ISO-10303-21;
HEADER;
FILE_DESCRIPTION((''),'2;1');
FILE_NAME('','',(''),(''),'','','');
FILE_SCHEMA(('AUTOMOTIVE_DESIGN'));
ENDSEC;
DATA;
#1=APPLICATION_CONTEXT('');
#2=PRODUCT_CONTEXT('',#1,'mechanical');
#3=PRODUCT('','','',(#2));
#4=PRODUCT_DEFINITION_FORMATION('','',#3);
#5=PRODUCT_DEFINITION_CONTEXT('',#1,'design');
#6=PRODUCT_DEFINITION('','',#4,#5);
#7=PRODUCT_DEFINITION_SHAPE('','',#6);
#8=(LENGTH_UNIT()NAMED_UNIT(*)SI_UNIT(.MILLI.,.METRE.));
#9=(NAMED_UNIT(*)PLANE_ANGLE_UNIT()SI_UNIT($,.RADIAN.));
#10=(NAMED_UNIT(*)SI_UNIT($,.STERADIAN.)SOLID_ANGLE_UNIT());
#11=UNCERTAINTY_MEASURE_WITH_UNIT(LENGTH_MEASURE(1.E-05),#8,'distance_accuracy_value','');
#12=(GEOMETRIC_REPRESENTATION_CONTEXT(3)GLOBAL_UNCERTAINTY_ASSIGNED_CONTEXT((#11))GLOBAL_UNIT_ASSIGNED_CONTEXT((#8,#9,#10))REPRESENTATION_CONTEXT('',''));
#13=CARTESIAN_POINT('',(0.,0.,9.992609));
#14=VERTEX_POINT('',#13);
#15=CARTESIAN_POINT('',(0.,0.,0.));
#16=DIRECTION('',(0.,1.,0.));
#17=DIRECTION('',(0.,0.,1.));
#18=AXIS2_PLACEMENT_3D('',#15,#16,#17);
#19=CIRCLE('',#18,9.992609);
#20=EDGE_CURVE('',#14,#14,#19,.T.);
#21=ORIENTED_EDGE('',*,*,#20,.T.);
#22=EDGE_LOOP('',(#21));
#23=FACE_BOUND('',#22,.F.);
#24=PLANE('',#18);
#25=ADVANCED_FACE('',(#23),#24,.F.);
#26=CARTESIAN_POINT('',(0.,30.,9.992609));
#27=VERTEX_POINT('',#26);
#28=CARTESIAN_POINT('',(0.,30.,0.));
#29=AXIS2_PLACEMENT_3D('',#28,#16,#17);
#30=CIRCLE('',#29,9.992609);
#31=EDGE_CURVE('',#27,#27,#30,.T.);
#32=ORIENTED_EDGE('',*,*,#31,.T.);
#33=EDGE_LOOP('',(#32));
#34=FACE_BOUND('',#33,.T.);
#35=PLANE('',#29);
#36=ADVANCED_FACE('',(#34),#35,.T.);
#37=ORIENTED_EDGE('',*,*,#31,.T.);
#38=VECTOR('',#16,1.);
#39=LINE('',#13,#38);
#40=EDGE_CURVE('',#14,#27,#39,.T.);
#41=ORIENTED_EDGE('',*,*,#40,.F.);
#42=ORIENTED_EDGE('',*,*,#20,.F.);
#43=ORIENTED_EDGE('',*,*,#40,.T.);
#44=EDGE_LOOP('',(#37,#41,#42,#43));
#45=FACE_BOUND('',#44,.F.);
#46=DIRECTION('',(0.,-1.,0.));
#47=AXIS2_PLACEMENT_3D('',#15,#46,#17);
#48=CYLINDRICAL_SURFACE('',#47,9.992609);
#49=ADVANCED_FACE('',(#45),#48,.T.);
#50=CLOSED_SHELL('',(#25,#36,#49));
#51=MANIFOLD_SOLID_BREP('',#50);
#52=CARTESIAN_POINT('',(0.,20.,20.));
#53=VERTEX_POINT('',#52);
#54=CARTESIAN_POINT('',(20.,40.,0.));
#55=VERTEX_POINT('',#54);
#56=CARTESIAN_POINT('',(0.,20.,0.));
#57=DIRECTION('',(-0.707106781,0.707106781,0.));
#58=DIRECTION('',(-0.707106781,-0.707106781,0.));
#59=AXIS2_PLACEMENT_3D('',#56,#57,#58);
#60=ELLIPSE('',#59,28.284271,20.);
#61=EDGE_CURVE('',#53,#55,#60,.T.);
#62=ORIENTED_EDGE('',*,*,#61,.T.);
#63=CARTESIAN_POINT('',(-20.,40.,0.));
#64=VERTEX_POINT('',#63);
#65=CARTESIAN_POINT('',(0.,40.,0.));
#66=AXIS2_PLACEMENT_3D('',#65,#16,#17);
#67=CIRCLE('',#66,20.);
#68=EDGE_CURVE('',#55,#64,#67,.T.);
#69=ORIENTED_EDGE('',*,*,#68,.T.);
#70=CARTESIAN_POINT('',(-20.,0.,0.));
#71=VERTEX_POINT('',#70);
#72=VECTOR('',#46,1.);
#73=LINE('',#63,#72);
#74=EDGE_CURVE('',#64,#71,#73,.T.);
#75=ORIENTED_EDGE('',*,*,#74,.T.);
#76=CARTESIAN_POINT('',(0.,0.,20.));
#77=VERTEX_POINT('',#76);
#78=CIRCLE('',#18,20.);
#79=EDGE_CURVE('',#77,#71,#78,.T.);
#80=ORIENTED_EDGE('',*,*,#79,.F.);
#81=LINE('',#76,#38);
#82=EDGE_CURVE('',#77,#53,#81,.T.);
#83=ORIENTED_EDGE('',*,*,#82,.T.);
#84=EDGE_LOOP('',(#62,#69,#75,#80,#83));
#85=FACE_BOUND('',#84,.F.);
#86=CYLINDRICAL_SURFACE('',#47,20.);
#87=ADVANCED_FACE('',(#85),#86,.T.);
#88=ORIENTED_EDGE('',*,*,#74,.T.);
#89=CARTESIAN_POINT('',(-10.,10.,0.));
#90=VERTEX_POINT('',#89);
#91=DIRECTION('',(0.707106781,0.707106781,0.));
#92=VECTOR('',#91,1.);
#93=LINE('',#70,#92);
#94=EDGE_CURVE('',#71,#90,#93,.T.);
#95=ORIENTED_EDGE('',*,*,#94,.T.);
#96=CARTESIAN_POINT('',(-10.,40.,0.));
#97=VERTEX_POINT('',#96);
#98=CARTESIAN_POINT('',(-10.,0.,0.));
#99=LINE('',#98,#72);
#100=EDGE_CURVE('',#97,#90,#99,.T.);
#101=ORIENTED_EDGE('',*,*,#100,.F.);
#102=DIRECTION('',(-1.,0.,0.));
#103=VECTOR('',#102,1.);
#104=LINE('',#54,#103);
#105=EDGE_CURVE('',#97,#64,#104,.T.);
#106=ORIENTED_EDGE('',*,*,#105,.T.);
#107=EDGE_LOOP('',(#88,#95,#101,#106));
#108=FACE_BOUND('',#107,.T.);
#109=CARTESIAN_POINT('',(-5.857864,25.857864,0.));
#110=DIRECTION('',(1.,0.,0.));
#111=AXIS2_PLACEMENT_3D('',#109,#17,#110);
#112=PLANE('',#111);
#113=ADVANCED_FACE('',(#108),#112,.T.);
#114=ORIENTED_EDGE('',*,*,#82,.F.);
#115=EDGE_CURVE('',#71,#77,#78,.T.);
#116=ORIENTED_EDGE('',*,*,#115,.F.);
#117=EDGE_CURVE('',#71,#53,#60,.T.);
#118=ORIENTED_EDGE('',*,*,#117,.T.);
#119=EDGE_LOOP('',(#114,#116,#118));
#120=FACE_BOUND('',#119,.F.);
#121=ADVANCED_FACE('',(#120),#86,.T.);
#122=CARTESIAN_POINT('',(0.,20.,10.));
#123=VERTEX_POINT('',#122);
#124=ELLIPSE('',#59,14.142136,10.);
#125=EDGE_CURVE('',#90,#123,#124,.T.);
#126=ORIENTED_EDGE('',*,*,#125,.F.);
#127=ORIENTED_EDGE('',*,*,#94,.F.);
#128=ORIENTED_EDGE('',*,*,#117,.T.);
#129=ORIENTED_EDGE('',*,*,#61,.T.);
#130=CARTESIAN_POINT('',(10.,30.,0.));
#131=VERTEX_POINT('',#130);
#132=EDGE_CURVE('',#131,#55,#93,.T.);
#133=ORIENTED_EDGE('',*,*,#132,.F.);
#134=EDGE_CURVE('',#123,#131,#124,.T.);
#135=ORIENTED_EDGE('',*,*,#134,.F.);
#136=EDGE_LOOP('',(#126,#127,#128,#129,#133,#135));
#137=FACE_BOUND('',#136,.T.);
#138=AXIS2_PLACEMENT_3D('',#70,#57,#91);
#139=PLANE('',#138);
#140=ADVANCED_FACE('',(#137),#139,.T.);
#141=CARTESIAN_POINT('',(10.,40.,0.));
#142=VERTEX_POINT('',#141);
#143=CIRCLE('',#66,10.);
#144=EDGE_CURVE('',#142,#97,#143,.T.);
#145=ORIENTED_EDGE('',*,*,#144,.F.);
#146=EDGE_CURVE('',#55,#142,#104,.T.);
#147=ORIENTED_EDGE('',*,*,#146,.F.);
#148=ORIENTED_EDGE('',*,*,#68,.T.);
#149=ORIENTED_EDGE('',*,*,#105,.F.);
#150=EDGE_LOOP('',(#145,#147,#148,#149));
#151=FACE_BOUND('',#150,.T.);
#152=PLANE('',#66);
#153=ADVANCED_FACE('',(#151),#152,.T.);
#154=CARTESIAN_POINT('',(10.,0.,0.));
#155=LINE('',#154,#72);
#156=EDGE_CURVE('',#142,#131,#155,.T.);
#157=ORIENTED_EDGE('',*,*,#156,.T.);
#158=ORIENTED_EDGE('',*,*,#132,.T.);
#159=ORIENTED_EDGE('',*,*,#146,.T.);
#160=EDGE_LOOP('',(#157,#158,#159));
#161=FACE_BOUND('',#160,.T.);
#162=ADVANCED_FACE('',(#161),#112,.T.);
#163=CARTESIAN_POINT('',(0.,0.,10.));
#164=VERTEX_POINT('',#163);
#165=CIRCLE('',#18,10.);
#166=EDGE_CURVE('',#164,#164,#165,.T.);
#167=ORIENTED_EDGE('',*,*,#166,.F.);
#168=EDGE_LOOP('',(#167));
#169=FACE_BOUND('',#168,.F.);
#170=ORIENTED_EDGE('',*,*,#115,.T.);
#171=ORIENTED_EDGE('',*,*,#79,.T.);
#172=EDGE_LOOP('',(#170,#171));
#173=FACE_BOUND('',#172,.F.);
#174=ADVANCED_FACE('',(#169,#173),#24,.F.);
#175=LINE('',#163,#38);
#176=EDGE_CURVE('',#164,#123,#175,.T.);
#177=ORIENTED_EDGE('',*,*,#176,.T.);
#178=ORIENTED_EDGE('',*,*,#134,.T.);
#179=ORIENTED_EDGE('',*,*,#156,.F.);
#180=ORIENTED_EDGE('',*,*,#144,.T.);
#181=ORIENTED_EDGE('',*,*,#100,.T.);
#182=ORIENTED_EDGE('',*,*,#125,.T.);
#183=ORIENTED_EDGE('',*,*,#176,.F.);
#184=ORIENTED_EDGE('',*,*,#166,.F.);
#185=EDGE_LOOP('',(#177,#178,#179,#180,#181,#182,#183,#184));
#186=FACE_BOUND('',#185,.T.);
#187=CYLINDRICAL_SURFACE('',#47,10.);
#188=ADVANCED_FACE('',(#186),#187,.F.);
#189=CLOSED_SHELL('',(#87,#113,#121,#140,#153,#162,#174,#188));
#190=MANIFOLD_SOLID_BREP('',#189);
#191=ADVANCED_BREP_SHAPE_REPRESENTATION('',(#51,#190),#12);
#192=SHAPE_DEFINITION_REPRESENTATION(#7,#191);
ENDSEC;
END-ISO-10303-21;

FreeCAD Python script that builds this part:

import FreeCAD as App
import Part
import Sketcher
Q = App.Units.Quantity

doc = App.newDocument("Part")
params = doc.addObject("Spreadsheet::Sheet", "Params")
for row, (alias, value) in enumerate([
    ("sketch1_diameter", "40 mm"),
    ("sketch1_diameter2", "20 mm"),
    ("pad1_length", "40 mm"),
    ("sketch2_width", "40 mm"),
    ("pocket1_length", "40 mm"),
    ("pad2_length", "30 mm"),
], start=1):
    params.set(f"A{row}", alias)
    params.set(f"B{row}", "=" + value)
    params.setAlias(f"B{row}", alias)

body = doc.addObject("PartDesign::Body", "Body")

# Sketch on XZ plane
sketch1 = doc.addObject("Sketcher::SketchObject", "Sketch")
body.addObject(sketch1)
sketch1.AttachmentSupport = (doc.XZ_Plane, [""])
sketch1.MapMode = "FlatFace"
sketch1.addGeometry([
    Part.Circle(App.Vector(0, 0, 0), App.Vector(0, 0, 1), 20),
    Part.Circle(App.Vector(0, 0, 0), App.Vector(0, 0, 1), 10),
], False)
sketch1.addConstraint([
    Sketcher.Constraint("Coincident", 0, 3, -1, 1),
    Sketcher.Constraint("Coincident", 1, 3, -1, 1),
    Sketcher.Constraint("Diameter", 0, Q("40 mm")),
    Sketcher.Constraint("Diameter", 1, Q("20 mm")),
])
sketch1.setExpression("Constraints[2]", "Params.sketch1_diameter")
sketch1.setExpression("Constraints[3]", "Params.sketch1_diameter2")
pad1 = doc.addObject("PartDesign::Pad", "Pad")
body.addObject(pad1)
pad1.Profile = sketch1
pad1.setExpression("Length", "Params.pad1_length")
pad1.Reversed = True

# Sketch on XY plane
sketch2 = doc.addObject("Sketcher::SketchObject", "Sketch001")
body.addObject(sketch2)
sketch2.AttachmentSupport = (doc.XY_Plane, [""])
sketch2.MapMode = "FlatFace"
sketch2.addGeometry([
    Part.LineSegment(App.Vector(-20, 0, 0), App.Vector(20, 40, 0)),
    Part.LineSegment(App.Vector(20, 40, 0), App.Vector(-20, 40, 0)),
    Part.LineSegment(App.Vector(-20, 40, 0), App.Vector(-20, 0, 0)),
], False)
sketch2.addConstraint([
    Sketcher.Constraint("Coincident", 0, 2, 1, 1),
    Sketcher.Constraint("Coincident", 1, 2, 2, 1),
    Sketcher.Constraint("Coincident", 2, 2, 0, 1),
    Sketcher.Constraint("Horizontal", 1),
    Sketcher.Constraint("Vertical", 2),
    Sketcher.Constraint("PointOnObject", 2, 2, -1),
    Sketcher.Constraint("Equal", 1, 2),
    Sketcher.Constraint("DistanceX", 1, 2, 1, 1, Q("40 mm")),
    Sketcher.Constraint("DistanceX", -1, 1, 0, 2, Q("20 mm")),
])
sketch2.setExpression("Constraints[7]", "Params.sketch2_width")
pocket1 = doc.addObject("PartDesign::Pocket", "Pocket")
body.addObject(pocket1)
pocket1.Profile = sketch2
pocket1.setExpression("Length", "Params.pocket1_length")
pocket1.Reversed = True
body2 = doc.addObject("PartDesign::Body", "Body001")

# Sketch on XZ plane
sketch3 = doc.addObject("Sketcher::SketchObject", "Sketch002")
body2.addObject(sketch3)
sketch3.AttachmentSupport = (doc.getObject("XZ_Plane001"), [""])
sketch3.MapMode = "FlatFace"
sketch3.addGeometry(Part.Circle(App.Vector(0, 0, 0), App.Vector(0, 0, 1), 10), False)
sketch3.addConstraint([
    Sketcher.Constraint("Coincident", 0, 3, -1, 1),
    Sketcher.Constraint("Diameter", 0, Q("19.985219 mm")),
])
pad2 = doc.addObject("PartDesign::Pad", "Pad001")
body2.addObject(pad2)
pad2.Profile = sketch3
pad2.setExpression("Length", "Params.pad2_length")
pad2.Reversed = True

doc.recompute()
